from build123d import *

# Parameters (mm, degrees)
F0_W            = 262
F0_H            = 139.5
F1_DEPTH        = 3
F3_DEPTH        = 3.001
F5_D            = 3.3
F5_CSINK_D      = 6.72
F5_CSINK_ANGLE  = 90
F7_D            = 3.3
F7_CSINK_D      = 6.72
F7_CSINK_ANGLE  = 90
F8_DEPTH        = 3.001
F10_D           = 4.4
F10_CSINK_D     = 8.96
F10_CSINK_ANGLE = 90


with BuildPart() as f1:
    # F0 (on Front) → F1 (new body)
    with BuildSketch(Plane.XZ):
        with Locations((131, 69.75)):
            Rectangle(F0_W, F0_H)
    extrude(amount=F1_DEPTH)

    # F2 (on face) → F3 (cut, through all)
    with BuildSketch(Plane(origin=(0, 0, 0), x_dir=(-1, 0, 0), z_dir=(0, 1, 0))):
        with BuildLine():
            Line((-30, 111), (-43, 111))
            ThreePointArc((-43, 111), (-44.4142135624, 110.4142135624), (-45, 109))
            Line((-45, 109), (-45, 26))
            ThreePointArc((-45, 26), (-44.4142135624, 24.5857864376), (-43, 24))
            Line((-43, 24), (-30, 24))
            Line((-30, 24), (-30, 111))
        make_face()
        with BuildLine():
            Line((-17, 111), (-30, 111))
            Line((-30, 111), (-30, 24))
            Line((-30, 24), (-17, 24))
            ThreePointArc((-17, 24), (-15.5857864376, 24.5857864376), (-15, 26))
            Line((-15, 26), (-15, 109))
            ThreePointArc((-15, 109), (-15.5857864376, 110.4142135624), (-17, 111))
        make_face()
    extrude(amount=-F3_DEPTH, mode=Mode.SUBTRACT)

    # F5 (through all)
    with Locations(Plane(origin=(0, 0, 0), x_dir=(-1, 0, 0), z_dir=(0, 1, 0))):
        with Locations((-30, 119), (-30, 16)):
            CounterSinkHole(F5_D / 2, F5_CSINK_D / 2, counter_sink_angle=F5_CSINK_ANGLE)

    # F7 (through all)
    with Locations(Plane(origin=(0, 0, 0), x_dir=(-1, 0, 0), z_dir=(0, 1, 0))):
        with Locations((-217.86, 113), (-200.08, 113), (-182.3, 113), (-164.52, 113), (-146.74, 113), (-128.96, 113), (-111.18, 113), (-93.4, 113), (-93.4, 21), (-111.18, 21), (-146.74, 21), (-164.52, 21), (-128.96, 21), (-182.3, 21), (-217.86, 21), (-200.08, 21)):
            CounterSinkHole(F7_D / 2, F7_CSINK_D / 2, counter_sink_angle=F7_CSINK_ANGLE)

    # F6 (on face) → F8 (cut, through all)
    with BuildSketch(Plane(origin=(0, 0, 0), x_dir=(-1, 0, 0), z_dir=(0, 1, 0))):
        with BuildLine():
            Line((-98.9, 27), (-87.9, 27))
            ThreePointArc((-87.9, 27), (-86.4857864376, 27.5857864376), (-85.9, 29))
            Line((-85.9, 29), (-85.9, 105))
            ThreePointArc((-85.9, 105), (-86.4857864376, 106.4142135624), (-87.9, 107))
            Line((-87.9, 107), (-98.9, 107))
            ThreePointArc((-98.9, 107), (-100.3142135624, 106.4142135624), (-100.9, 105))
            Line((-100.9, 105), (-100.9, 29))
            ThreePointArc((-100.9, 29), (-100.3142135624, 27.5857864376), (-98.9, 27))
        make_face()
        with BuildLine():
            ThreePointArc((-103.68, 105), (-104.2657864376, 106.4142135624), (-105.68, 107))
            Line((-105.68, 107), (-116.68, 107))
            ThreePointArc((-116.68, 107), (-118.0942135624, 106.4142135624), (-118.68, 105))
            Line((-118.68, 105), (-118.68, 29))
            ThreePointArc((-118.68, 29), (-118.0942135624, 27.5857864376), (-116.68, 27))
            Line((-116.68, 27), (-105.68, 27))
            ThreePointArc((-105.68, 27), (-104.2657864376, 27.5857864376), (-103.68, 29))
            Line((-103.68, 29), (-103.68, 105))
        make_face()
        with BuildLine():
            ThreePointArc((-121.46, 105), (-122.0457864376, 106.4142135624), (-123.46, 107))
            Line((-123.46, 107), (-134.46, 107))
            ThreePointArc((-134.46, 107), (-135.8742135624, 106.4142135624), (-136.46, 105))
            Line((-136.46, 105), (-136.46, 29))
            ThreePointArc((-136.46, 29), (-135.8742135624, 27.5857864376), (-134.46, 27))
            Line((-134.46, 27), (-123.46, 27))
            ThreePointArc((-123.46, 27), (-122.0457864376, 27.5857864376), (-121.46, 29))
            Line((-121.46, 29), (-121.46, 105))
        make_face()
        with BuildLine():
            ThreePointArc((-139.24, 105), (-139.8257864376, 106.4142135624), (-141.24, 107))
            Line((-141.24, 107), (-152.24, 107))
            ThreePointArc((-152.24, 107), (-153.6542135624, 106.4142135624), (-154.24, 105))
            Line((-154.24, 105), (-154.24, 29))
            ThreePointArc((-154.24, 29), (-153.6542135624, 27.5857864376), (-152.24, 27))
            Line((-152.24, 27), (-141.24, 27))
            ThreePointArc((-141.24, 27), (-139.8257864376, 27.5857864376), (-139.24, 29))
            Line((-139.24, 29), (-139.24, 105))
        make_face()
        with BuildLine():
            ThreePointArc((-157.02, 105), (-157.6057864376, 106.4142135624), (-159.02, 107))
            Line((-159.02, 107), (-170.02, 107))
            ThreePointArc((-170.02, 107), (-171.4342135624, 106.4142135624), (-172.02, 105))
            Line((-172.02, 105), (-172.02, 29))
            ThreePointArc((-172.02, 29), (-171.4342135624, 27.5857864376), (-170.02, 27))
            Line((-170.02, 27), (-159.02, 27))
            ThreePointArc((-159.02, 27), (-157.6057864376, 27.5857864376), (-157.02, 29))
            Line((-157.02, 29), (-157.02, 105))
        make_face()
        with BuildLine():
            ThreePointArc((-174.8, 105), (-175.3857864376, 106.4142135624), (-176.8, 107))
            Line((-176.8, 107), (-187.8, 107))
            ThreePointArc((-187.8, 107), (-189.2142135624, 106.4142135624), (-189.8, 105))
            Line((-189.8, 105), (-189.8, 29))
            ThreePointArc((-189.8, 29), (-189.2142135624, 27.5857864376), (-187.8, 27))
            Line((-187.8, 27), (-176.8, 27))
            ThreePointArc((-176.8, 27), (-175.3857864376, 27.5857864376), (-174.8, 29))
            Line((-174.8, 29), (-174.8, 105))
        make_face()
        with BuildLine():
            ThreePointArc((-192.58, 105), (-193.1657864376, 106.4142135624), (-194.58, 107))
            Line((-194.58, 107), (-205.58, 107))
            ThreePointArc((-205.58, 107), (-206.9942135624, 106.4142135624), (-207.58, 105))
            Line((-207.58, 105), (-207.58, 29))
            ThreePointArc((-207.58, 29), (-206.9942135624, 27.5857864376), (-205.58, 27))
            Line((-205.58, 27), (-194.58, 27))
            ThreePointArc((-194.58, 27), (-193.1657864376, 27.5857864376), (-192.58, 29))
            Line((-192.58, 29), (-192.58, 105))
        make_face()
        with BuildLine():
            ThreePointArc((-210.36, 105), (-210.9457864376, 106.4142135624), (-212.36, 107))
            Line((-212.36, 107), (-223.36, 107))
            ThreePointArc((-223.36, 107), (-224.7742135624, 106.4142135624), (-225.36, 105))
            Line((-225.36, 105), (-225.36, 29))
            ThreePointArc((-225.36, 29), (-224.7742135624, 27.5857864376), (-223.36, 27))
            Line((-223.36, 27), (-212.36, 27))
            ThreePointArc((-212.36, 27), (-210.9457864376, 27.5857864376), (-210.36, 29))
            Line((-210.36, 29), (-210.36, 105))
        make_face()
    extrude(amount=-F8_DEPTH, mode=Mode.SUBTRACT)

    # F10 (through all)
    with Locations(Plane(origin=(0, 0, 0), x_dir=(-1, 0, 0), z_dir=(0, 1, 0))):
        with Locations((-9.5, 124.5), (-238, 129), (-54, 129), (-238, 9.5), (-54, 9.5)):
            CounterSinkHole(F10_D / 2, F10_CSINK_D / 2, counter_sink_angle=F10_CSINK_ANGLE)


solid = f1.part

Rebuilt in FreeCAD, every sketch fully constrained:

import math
import FreeCAD as App
import Part
import Sketcher

V = App.Vector
Q = App.Units.Quantity

doc = App.newDocument("Part")
body = doc.addObject("PartDesign::Body", "Body")

# Sketch on XZ plane
sketch1 = body.newObject("Sketcher::SketchObject", "Sketch")
sketch1.AttachmentSupport = (doc.getObject("XZ_Plane"), [""])
sketch1.MapMode = "FlatFace"
sketch1.addGeometry([
    Part.LineSegment(V(0, 140, 0), V(0, 0, 0)),
    Part.LineSegment(V(0, 0, 0), V(262, 0, 0)),
    Part.LineSegment(V(262, 0, 0), V(262, 140, 0)),
    Part.LineSegment(V(262, 140, 0), V(0, 140, 0)),
], False)
sketch1.addConstraint([
    Sketcher.Constraint("Coincident", 0, 2, 1, 1),
    Sketcher.Constraint("Coincident", 1, 2, 2, 1),
    Sketcher.Constraint("Coincident", 2, 2, 3, 1),
    Sketcher.Constraint("Coincident", 3, 2, 0, 1),
    Sketcher.Constraint("Vertical", 0),
    Sketcher.Constraint("Horizontal", 1),
    Sketcher.Constraint("Vertical", 2),
    Sketcher.Constraint("Horizontal", 3),
    Sketcher.Constraint("Coincident", 0, 2, -1, 1),
    Sketcher.Constraint("DistanceX", 1, 1, 1, 2, Q("262 mm")),
    Sketcher.Constraint("DistanceY", 0, 2, 0, 1, Q("139.5 mm")),
])
pad1 = body.newObject("PartDesign::Pad", "Pad")
pad1.Profile = sketch1
pad1.Length = 3

# Sketch on XZ plane
sketch2 = body.newObject("Sketcher::SketchObject", "Sketch001")
sketch2.AttachmentSupport = (doc.getObject("XZ_Plane"), [""])
sketch2.MapMode = "FlatFace"
sketch2.addGeometry([
    Part.ArcOfCircle(Part.Circle(V(43, 109, 0), V(0, 0, 1), 2), math.radians(0), math.radians(90)),  # 0
    Part.LineSegment(V(45, 109, 0), V(45, 26, 0)),  # 1
    Part.ArcOfCircle(Part.Circle(V(43, 26, 0), V(0, 0, 1), 2), math.radians(-90), math.radians(0)),  # 2
    Part.LineSegment(V(43, 24, 0), V(17, 24, 0)),  # 3
    Part.ArcOfCircle(Part.Circle(V(17, 26, 0), V(0, 0, 1), 2), math.radians(180), math.radians(270)),  # 4
    Part.LineSegment(V(15, 26, 0), V(15, 109, 0)),  # 5
    Part.ArcOfCircle(Part.Circle(V(17, 109, 0), V(0, 0, 1), 2), math.radians(90), math.radians(180)),  # 6
    Part.LineSegment(V(17, 111, 0), V(43, 111, 0)),  # 7
], False)
sketch2.addConstraint([
    Sketcher.Constraint("Tangent", 0, 1, 1, 1),
    Sketcher.Constraint("Tangent", 1, 2, 2, 2),
    Sketcher.Constraint("Tangent", 2, 1, 3, 1),
    Sketcher.Constraint("Tangent", 3, 2, 4, 2),
    Sketcher.Constraint("Tangent", 4, 1, 5, 1),
    Sketcher.Constraint("Tangent", 5, 2, 6, 2),
    Sketcher.Constraint("Tangent", 6, 1, 7, 1),
    Sketcher.Constraint("Tangent", 7, 2, 0, 2),
    Sketcher.Constraint("Vertical", 1),
    Sketcher.Constraint("Horizontal", 3),
    Sketcher.Constraint("Vertical", 5),
    Sketcher.Constraint("Horizontal", 7),
    Sketcher.Constraint("Equal", 0, 2),
    Sketcher.Constraint("Equal", 2, 4),
    Sketcher.Constraint("Equal", 4, 6),
    Sketcher.Constraint("Radius", 0, Q("2 mm")),
    Sketcher.Constraint("DistanceX", 3, 2, 3, 1, Q("26 mm")),
    Sketcher.Constraint("DistanceY", 1, 2, 1, 1, Q("83 mm")),
    Sketcher.Constraint("DistanceX", -1, 1, 0, 3, Q("43 mm")),
    Sketcher.Constraint("DistanceY", -1, 1, 0, 3, Q("109 mm")),
])
pocket1 = body.newObject("PartDesign::Pocket", "Pocket")
pocket1.Profile = sketch2
pocket1.Type = "ThroughAll"
pocket1.Reversed = True

# Sketch on XZ plane
sketch3 = body.newObject("Sketcher::SketchObject", "Sketch002")
sketch3.AttachmentSupport = (doc.getObject("XZ_Plane"), [""])
sketch3.MapMode = "FlatFace"
sketch3.addGeometry([
    Part.Circle(V(30, 119, 0), V(0, 0, 1), 1.6),
    Part.Circle(V(30, 16, 0), V(0, 0, 1), 1.6),
], False)
sketch3.addConstraint([
    Sketcher.Constraint("Equal", 0, 1),
    Sketcher.Constraint("Vertical", 0, 3, 1, 3),
    Sketcher.Constraint("Diameter", 0, Q("3.3 mm")),
    Sketcher.Constraint("DistanceX", -1, 1, 0, 3, Q("30 mm")),
    Sketcher.Constraint("DistanceY", -1, 1, 0, 3, Q("119 mm")),
    Sketcher.Constraint("DistanceY", -1, 1, 1, 3, Q("16 mm")),
])
doc.recompute()
hole = body.newObject("PartDesign::Hole", "Hole")
hole.Profile = sketch3
hole.ThreadType = "None"
hole.Diameter = 3.3
hole.DepthType = "ThroughAll"
hole.HoleCutType = "Countersink"
hole.HoleCutDiameter = 6.72
hole.HoleCutCountersinkAngle = 90
hole.Reversed = True

# Sketch on XZ plane
sketch4 = body.newObject("Sketcher::SketchObject", "Sketch003")
sketch4.AttachmentSupport = (doc.getObject("XZ_Plane"), [""])
sketch4.MapMode = "FlatFace"
sketch4.addGeometry([
    Part.Circle(V(217.9, 113, 0), V(0, 0, 1), 1.6),  # 0
    Part.Circle(V(200.1, 113, 0), V(0, 0, 1), 1.6),  # 1
    Part.Circle(V(182.3, 113, 0), V(0, 0, 1), 1.6),  # 2
    Part.Circle(V(164.5, 113, 0), V(0, 0, 1), 1.6),  # 3
    Part.Circle(V(146.7, 113, 0), V(0, 0, 1), 1.6),  # 4
    Part.Circle(V(129, 113, 0), V(0, 0, 1), 1.6),  # 5
    Part.Circle(V(111.2, 113, 0), V(0, 0, 1), 1.6),  # 6
    Part.Circle(V(93.4, 113, 0), V(0, 0, 1), 1.6),  # 7
    Part.Circle(V(93.4, 21, 0), V(0, 0, 1), 1.6),  # 8
    Part.Circle(V(111.2, 21, 0), V(0, 0, 1), 1.6),  # 9
    Part.Circle(V(146.7, 21, 0), V(0, 0, 1), 1.6),  # 10
    Part.Circle(V(164.5, 21, 0), V(0, 0, 1), 1.6),  # 11
    Part.Circle(V(129, 21, 0), V(0, 0, 1), 1.6),  # 12
    Part.Circle(V(182.3, 21, 0), V(0, 0, 1), 1.6),  # 13
    Part.Circle(V(217.9, 21, 0), V(0, 0, 1), 1.6),  # 14
    Part.Circle(V(200.1, 21, 0), V(0, 0, 1), 1.6),  # 15
], False)
sketch4.addConstraint([
    Sketcher.Constraint("Equal", 0, 1),
    Sketcher.Constraint("Equal", 1, 2),
    Sketcher.Constraint("Equal", 2, 3),
    Sketcher.Constraint("Equal", 3, 4),
    Sketcher.Constraint("Equal", 4, 5),
    Sketcher.Constraint("Equal", 5, 6),
    Sketcher.Constraint("Equal", 6, 7),
    Sketcher.Constraint("Equal", 7, 8),
    Sketcher.Constraint("Equal", 8, 9),
    Sketcher.Constraint("Equal", 9, 10),
    Sketcher.Constraint("Equal", 10, 11),
    Sketcher.Constraint("Equal", 11, 12),
    Sketcher.Constraint("Equal", 12, 13),
    Sketcher.Constraint("Equal", 13, 14),
    Sketcher.Constraint("Equal", 14, 15),
    Sketcher.Constraint("Horizontal", 0, 3, 1, 3),
    Sketcher.Constraint("Horizontal", 1, 3, 2, 3),
    Sketcher.Constraint("Horizontal", 2, 3, 3, 3),
    Sketcher.Constraint("Horizontal", 3, 3, 4, 3),
    Sketcher.Constraint("Horizontal", 4, 3, 5, 3),
    Sketcher.Constraint("Horizontal", 5, 3, 6, 3),
    Sketcher.Constraint("Horizontal", 6, 3, 7, 3),
    Sketcher.Constraint("Horizontal", 8, 3, 9, 3),
    Sketcher.Constraint("Horizontal", 9, 3, 10, 3),
    Sketcher.Constraint("Horizontal", 10, 3, 11, 3),
    Sketcher.Constraint("Horizontal", 11, 3, 12, 3),
    Sketcher.Constraint("Horizontal", 12, 3, 13, 3),
    Sketcher.Constraint("Horizontal", 13, 3, 14, 3),
    Sketcher.Constraint("Horizontal", 14, 3, 15, 3),
    Sketcher.Constraint("Vertical", 7, 3, 8, 3),
    Sketcher.Constraint("Vertical", 6, 3, 9, 3),
    Sketcher.Constraint("Vertical", 4, 3, 10, 3),
    Sketcher.Constraint("Vertical", 3, 3, 11, 3),
    Sketcher.Constraint("Vertical", 5, 3, 12, 3),
    Sketcher.Constraint("Vertical", 2, 3, 13, 3),
    Sketcher.Constraint("Vertical", 0, 3, 14, 3),
    Sketcher.Constraint("Vertical", 1, 3, 15, 3),
    Sketcher.Constraint("Diameter", 0, Q("3.3 mm")),
    Sketcher.Constraint("DistanceY", -1, 1, 0, 3, Q("113 mm")),
    Sketcher.Constraint("DistanceY", -1, 1, 8, 3, Q("21 mm")),
    Sketcher.Constraint("DistanceX", -1, 1, 2, 3, Q("182.3 mm")),
    Sketcher.Constraint("DistanceX", -1, 1, 7, 3, Q("93.4 mm")),
    Sketcher.Constraint("DistanceX", 5, 3, 0, 3, Q("88.9 mm")),
    Sketcher.Constraint("DistanceX", 6, 3, 1, 3, Q("88.9 mm")),
    Sketcher.Constraint("DistanceX", -1, 1, 0, 3, Q("217.86 mm")),
    Sketcher.Constraint("DistanceX", -1, 1, 1, 3, Q("200.08 mm")),
    Sketcher.Constraint("DistanceX", -1, 1, 3, 3, Q("164.52 mm")),
    Sketcher.Constraint("DistanceX", -1, 1, 4, 3, Q("146.74 mm")),
])
doc.recompute()
hole2 = body.newObject("PartDesign::Hole", "Hole001")
hole2.Profile = sketch4
hole2.ThreadType = "None"
hole2.Diameter = 3.3
hole2.DepthType = "ThroughAll"
hole2.HoleCutType = "Countersink"
hole2.HoleCutDiameter = 6.72
hole2.HoleCutCountersinkAngle = 90
hole2.Reversed = True

# Sketch on XZ plane
sketch5 = body.newObject("Sketcher::SketchObject", "Sketch004")
sketch5.AttachmentSupport = (doc.getObject("XZ_Plane"), [""])
sketch5.MapMode = "FlatFace"
sketch5.addGeometry([
    Part.LineSegment(V(98.9, 27, 0), V(87.9, 27, 0)),  # 0
    Part.ArcOfCircle(Part.Circle(V(87.9, 29, 0), V(0, 0, 1), 2), math.radians(180), math.radians(270)),  # 1
    Part.LineSegment(V(85.9, 29, 0), V(85.9, 105, 0)),  # 2
    Part.ArcOfCircle(Part.Circle(V(87.9, 105, 0), V(0, 0, 1), 2), math.radians(90), math.radians(180)),  # 3
    Part.LineSegment(V(87.9, 107, 0), V(98.9, 107, 0)),  # 4
    Part.ArcOfCircle(Part.Circle(V(98.9, 105, 0), V(0, 0, 1), 2), math.radians(0), math.radians(90)),  # 5
    Part.LineSegment(V(100.9, 105, 0), V(100.9, 29, 0)),  # 6
    Part.ArcOfCircle(Part.Circle(V(98.9, 29, 0), V(0, 0, 1), 2), math.radians(-90), math.radians(0)),  # 7
    Part.ArcOfCircle(Part.Circle(V(105.7, 105, 0), V(0, 0, 1), 2), math.radians(90), math.radians(180)),  # 8
    Part.LineSegment(V(105.7, 107, 0), V(116.7, 107, 0)),  # 9
    Part.ArcOfCircle(Part.Circle(V(116.7, 105, 0), V(0, 0, 1), 2), math.radians(0), math.radians(90)),  # 10
    Part.LineSegment(V(118.7, 105, 0), V(118.7, 29, 0)),  # 11
    Part.ArcOfCircle(Part.Circle(V(116.7, 29, 0), V(0, 0, 1), 2), math.radians(-90), math.radians(0)),  # 12
    Part.LineSegment(V(116.7, 27, 0), V(105.7, 27, 0)),  # 13
    Part.ArcOfCircle(Part.Circle(V(105.7, 29, 0), V(0, 0, 1), 2), math.radians(180), math.radians(270)),  # 14
    Part.LineSegment(V(103.7, 29, 0), V(103.7, 105, 0)),  # 15
    Part.ArcOfCircle(Part.Circle(V(123.5, 105, 0), V(0, 0, 1), 2), math.radians(90), math.radians(180)),  # 16
    Part.LineSegment(V(123.5, 107, 0), V(134.5, 107, 0)),  # 17
    Part.ArcOfCircle(Part.Circle(V(134.5, 105, 0), V(0, 0, 1), 2), math.radians(0), math.radians(90)),  # 18
    Part.LineSegment(V(136.5, 105, 0), V(136.5, 29, 0)),  # 19
    Part.ArcOfCircle(Part.Circle(V(134.5, 29, 0), V(0, 0, 1), 2), math.radians(-90), math.radians(0)),  # 20
    Part.LineSegment(V(134.5, 27, 0), V(123.5, 27, 0)),  # 21
    Part.ArcOfCircle(Part.Circle(V(123.5, 29, 0), V(0, 0, 1), 2), math.radians(180), math.radians(270)),  # 22
    Part.LineSegment(V(121.5, 29, 0), V(121.5, 105, 0)),  # 23
    Part.ArcOfCircle(Part.Circle(V(141.2, 105, 0), V(0, 0, 1), 2), math.radians(90), math.radians(180)),  # 24
    Part.LineSegment(V(141.2, 107, 0), V(152.2, 107, 0)),  # 25
    Part.ArcOfCircle(Part.Circle(V(152.2, 105, 0), V(0, 0, 1), 2), math.radians(0), math.radians(90)),  # 26
    Part.LineSegment(V(154.2, 105, 0), V(154.2, 29, 0)),  # 27
    Part.ArcOfCircle(Part.Circle(V(152.2, 29, 0), V(0, 0, 1), 2), math.radians(-90), math.radians(0)),  # 28
    Part.LineSegment(V(152.2, 27, 0), V(141.2, 27, 0)),  # 29
    Part.ArcOfCircle(Part.Circle(V(141.2, 29, 0), V(0, 0, 1), 2), math.radians(180), math.radians(270)),  # 30
    Part.LineSegment(V(139.2, 29, 0), V(139.2, 105, 0)),  # 31
    Part.ArcOfCircle(Part.Circle(V(159, 105, 0), V(0, 0, 1), 2), math.radians(90), math.radians(180)),  # 32
    Part.LineSegment(V(159, 107, 0), V(170, 107, 0)),  # 33
    Part.ArcOfCircle(Part.Circle(V(170, 105, 0), V(0, 0, 1), 2), math.radians(0), math.radians(90)),  # 34
    Part.LineSegment(V(172, 105, 0), V(172, 29, 0)),  # 35
    Part.ArcOfCircle(Part.Circle(V(170, 29, 0), V(0, 0, 1), 2), math.radians(-90), math.radians(0)),  # 36
    Part.LineSegment(V(170, 27, 0), V(159, 27, 0)),  # 37
    Part.ArcOfCircle(Part.Circle(V(159, 29, 0), V(0, 0, 1), 2), math.radians(180), math.radians(270)),  # 38
    Part.LineSegment(V(157, 29, 0), V(157, 105, 0)),  # 39
    Part.ArcOfCircle(Part.Circle(V(176.8, 105, 0), V(0, 0, 1), 2), math.radians(90), math.radians(180)),  # 40
    Part.LineSegment(V(176.8, 107, 0), V(187.8, 107, 0)),  # 41
    Part.ArcOfCircle(Part.Circle(V(187.8, 105, 0), V(0, 0, 1), 2), math.radians(0), math.radians(90)),  # 42
    Part.LineSegment(V(189.8, 105, 0), V(189.8, 29, 0)),  # 43
    Part.ArcOfCircle(Part.Circle(V(187.8, 29, 0), V(0, 0, 1), 2), math.radians(-90), math.radians(0)),  # 44
    Part.LineSegment(V(187.8, 27, 0), V(176.8, 27, 0)),  # 45
    Part.ArcOfCircle(Part.Circle(V(176.8, 29, 0), V(0, 0, 1), 2), math.radians(180), math.radians(270)),  # 46
    Part.LineSegment(V(174.8, 29, 0), V(174.8, 105, 0)),  # 47
    Part.ArcOfCircle(Part.Circle(V(194.6, 105, 0), V(0, 0, 1), 2), math.radians(90), math.radians(180)),  # 48
    Part.LineSegment(V(194.6, 107, 0), V(205.6, 107, 0)),  # 49
    Part.ArcOfCircle(Part.Circle(V(205.6, 105, 0), V(0, 0, 1), 2), math.radians(0), math.radians(90)),  # 50
    Part.LineSegment(V(207.6, 105, 0), V(207.6, 29, 0)),  # 51
    Part.ArcOfCircle(Part.Circle(V(205.6, 29, 0), V(0, 0, 1), 2), math.radians(-90), math.radians(0)),  # 52
    Part.LineSegment(V(205.6, 27, 0), V(194.6, 27, 0)),  # 53
    Part.ArcOfCircle(Part.Circle(V(194.6, 29, 0), V(0, 0, 1), 2), math.radians(180), math.radians(270)),  # 54
    Part.LineSegment(V(192.6, 29, 0), V(192.6, 105, 0)),  # 55
    Part.ArcOfCircle(Part.Circle(V(212.4, 105, 0), V(0, 0, 1), 2), math.radians(90), math.radians(180)),  # 56
    Part.LineSegment(V(212.4, 107, 0), V(223.4, 107, 0)),  # 57
    Part.ArcOfCircle(Part.Circle(V(223.4, 105, 0), V(0, 0, 1), 2), math.radians(0), math.radians(90)),  # 58
    Part.LineSegment(V(225.4, 105, 0), V(225.4, 29, 0)),  # 59
    Part.ArcOfCircle(Part.Circle(V(223.4, 29, 0), V(0, 0, 1), 2), math.radians(-90), math.radians(0)),  # 60
    Part.LineSegment(V(223.4, 27, 0), V(212.4, 27, 0)),  # 61
    Part.ArcOfCircle(Part.Circle(V(212.4, 29, 0), V(0, 0, 1), 2), math.radians(180), math.radians(270)),  # 62
    Part.LineSegment(V(210.4, 29, 0), V(210.4, 105, 0)),  # 63
], False)
sketch5.addConstraint([
    Sketcher.Constraint("Tangent", 0, 2, 1, 2),
    Sketcher.Constraint("Tangent", 1, 1, 2, 1),
    Sketcher.Constraint("Tangent", 2, 2, 3, 2),
    Sketcher.Constraint("Tangent", 3, 1, 4, 1),
    Sketcher.Constraint("Tangent", 4, 2, 5, 2),
    Sketcher.Constraint("Tangent", 5, 1, 6, 1),
    Sketcher.Constraint("Tangent", 6, 2, 7, 2),
    Sketcher.Constraint("Tangent", 7, 1, 0, 1),
    Sketcher.Constraint("Tangent", 8, 1, 9, 1),
    Sketcher.Constraint("Tangent", 9, 2, 10, 2),
    Sketcher.Constraint("Tangent", 10, 1, 11, 1),
    Sketcher.Constraint("Tangent", 11, 2, 12, 2),
    Sketcher.Constraint("Tangent", 12, 1, 13, 1),
    Sketcher.Constraint("Tangent", 13, 2, 14, 2),
    Sketcher.Constraint("Tangent", 14, 1, 15, 1),
    Sketcher.Constraint("Tangent", 15, 2, 8, 2),
    Sketcher.Constraint("Tangent", 16, 1, 17, 1),
    Sketcher.Constraint("Tangent", 17, 2, 18, 2),
    Sketcher.Constraint("Tangent", 18, 1, 19, 1),
    Sketcher.Constraint("Tangent", 19, 2, 20, 2),
    Sketcher.Constraint("Tangent", 20, 1, 21, 1),
    Sketcher.Constraint("Tangent", 21, 2, 22, 2),
    Sketcher.Constraint("Tangent", 22, 1, 23, 1),
    Sketcher.Constraint("Tangent", 23, 2, 16, 2),
    Sketcher.Constraint("Tangent", 24, 1, 25, 1),
    Sketcher.Constraint("Tangent", 25, 2, 26, 2),
    Sketcher.Constraint("Tangent", 26, 1, 27, 1),
    Sketcher.Constraint("Tangent", 27, 2, 28, 2),
    Sketcher.Constraint("Tangent", 28, 1, 29, 1),
    Sketcher.Constraint("Tangent", 29, 2, 30, 2),
    Sketcher.Constraint("Tangent", 30, 1, 31, 1),
    Sketcher.Constraint("Tangent", 31, 2, 24, 2),
    Sketcher.Constraint("Tangent", 32, 1, 33, 1),
    Sketcher.Constraint("Tangent", 33, 2, 34, 2),
    Sketcher.Constraint("Tangent", 34, 1, 35, 1),
    Sketcher.Constraint("Tangent", 35, 2, 36, 2),
    Sketcher.Constraint("Tangent", 36, 1, 37, 1),
    Sketcher.Constraint("Tangent", 37, 2, 38, 2),
    Sketcher.Constraint("Tangent", 38, 1, 39, 1),
    Sketcher.Constraint("Tangent", 39, 2, 32, 2),
    Sketcher.Constraint("Tangent", 40, 1, 41, 1),
    Sketcher.Constraint("Tangent", 41, 2, 42, 2),
    Sketcher.Constraint("Tangent", 42, 1, 43, 1),
    Sketcher.Constraint("Tangent", 43, 2, 44, 2),
    Sketcher.Constraint("Tangent", 44, 1, 45, 1),
    Sketcher.Constraint("Tangent", 45, 2, 46, 2),
    Sketcher.Constraint("Tangent", 46, 1, 47, 1),
    Sketcher.Constraint("Tangent", 47, 2, 40, 2),
    Sketcher.Constraint("Tangent", 48, 1, 49, 1),
    Sketcher.Constraint("Tangent", 49, 2, 50, 2),
    Sketcher.Constraint("Tangent", 50, 1, 51, 1),
    Sketcher.Constraint("Tangent", 51, 2, 52, 2),
    Sketcher.Constraint("Tangent", 52, 1, 53, 1),
    Sketcher.Constraint("Tangent", 53, 2, 54, 2),
    Sketcher.Constraint("Tangent", 54, 1, 55, 1),
    Sketcher.Constraint("Tangent", 55, 2, 48, 2),
    Sketcher.Constraint("Tangent", 56, 1, 57, 1),
    Sketcher.Constraint("Tangent", 57, 2, 58, 2),
    Sketcher.Constraint("Tangent", 58, 1, 59, 1),
    Sketcher.Constraint("Tangent", 59, 2, 60, 2),
    Sketcher.Constraint("Tangent", 60, 1, 61, 1),
    Sketcher.Constraint("Tangent", 61, 2, 62, 2),
    Sketcher.Constraint("Tangent", 62, 1, 63, 1),
    Sketcher.Constraint("Tangent", 63, 2, 56, 2),
    Sketcher.Constraint("Horizontal", 0),
    Sketcher.Constraint("Vertical", 2),
    Sketcher.Constraint("Horizontal", 4),
    Sketcher.Constraint("Vertical", 6),
    Sketcher.Constraint("Horizontal", 9),
    Sketcher.Constraint("Vertical", 11),
    Sketcher.Constraint("Horizontal", 13),
    Sketcher.Constraint("Vertical", 15),
    Sketcher.Constraint("Horizontal", 17),
    Sketcher.Constraint("Vertical", 19),
    Sketcher.Constraint("Horizontal", 21),
    Sketcher.Constraint("Vertical", 23),
    Sketcher.Constraint("Horizontal", 25),
    Sketcher.Constraint("Vertical", 27),
    Sketcher.Constraint("Horizontal", 29),
    Sketcher.Constraint("Vertical", 31),
    Sketcher.Constraint("Horizontal", 33),
    Sketcher.Constraint("Vertical", 35),
    Sketcher.Constraint("Horizontal", 37),
    Sketcher.Constraint("Vertical", 39),
    Sketcher.Constraint("Horizontal", 41),
    Sketcher.Constraint("Vertical", 43),
    Sketcher.Constraint("Horizontal", 45),
    Sketcher.Constraint("Vertical", 47),
    Sketcher.Constraint("Horizontal", 49),
    Sketcher.Constraint("Vertical", 51),
    Sketcher.Constraint("Horizontal", 53),
    Sketcher.Constraint("Vertical", 55),
    Sketcher.Constraint("Horizontal", 57),
    Sketcher.Constraint("Vertical", 59),
    Sketcher.Constraint("Horizontal", 61),
    Sketcher.Constraint("Vertical", 63),
    Sketcher.Constraint("Equal", 1, 3),
    Sketcher.Constraint("Equal", 3, 5),
    Sketcher.Constraint("Equal", 5, 7),
    Sketcher.Constraint("Equal", 7, 8),
    Sketcher.Constraint("Equal", 8, 10),
    Sketcher.Constraint("Equal", 10, 12),
    Sketcher.Constraint("Equal", 12, 14),
    Sketcher.Constraint("Equal", 14, 16),
    Sketcher.Constraint("Equal", 16, 18),
    Sketcher.Constraint("Equal", 18, 20),
    Sketcher.Constraint("Equal", 20, 22),
    Sketcher.Constraint("Equal", 22, 24),
    Sketcher.Constraint("Equal", 24, 26),
    Sketcher.Constraint("Equal", 26, 28),
    Sketcher.Constraint("Equal", 28, 30),
    Sketcher.Constraint("Equal", 30, 32),
    Sketcher.Constraint("Equal", 32, 34),
    Sketcher.Constraint("Equal", 34, 36),
    Sketcher.Constraint("Equal", 36, 38),
    Sketcher.Constraint("Equal", 38, 40),
    Sketcher.Constraint("Equal", 40, 42),
    Sketcher.Constraint("Equal", 42, 44),
    Sketcher.Constraint("Equal", 44, 46),
    Sketcher.Constraint("Equal", 46, 48),
    Sketcher.Constraint("Equal", 48, 50),
    Sketcher.Constraint("Equal", 50, 52),
    Sketcher.Constraint("Equal", 52, 54),
    Sketcher.Constraint("Equal", 54, 56),
    Sketcher.Constraint("Equal", 56, 58),
    Sketcher.Constraint("Equal", 58, 60),
    Sketcher.Constraint("Equal", 60, 62),
    Sketcher.Constraint("Horizontal", 5, 3, 8, 3),
    Sketcher.Constraint("Horizontal", 7, 3, 12, 3),
    Sketcher.Constraint("Horizontal", 10, 3, 16, 3),
    Sketcher.Constraint("Horizontal", 14, 3, 20, 3),
    Sketcher.Constraint("Horizontal", 18, 3, 24, 3),
    Sketcher.Constraint("Horizontal", 22, 3, 28, 3),
    Sketcher.Constraint("Horizontal", 26, 3, 32, 3),
    Sketcher.Constraint("Horizontal", 30, 3, 36, 3),
    Sketcher.Constraint("Horizontal", 34, 3, 40, 3),
    Sketcher.Constraint("Horizontal", 38, 3, 44, 3),
    Sketcher.Constraint("Horizontal", 42, 3, 48, 3),
    Sketcher.Constraint("Horizontal", 46, 3, 52, 3),
    Sketcher.Constraint("Horizontal", 50, 3, 56, 3),
    Sketcher.Constraint("Horizontal", 54, 3, 60, 3),
    Sketcher.Constraint("Equal", 4, 9),
    Sketcher.Constraint("Equal", 13, 17),
    Sketcher.Constraint("Equal", 21, 25),
    Sketcher.Constraint("Equal", 29, 33),
    Sketcher.Constraint("Equal", 37, 41),
    Sketcher.Constraint("Equal", 45, 49),
    Sketcher.Constraint("Equal", 53, 57),
    Sketcher.Constraint("Radius", 1, Q("2 mm")),
    Sketcher.Constraint("DistanceX", 0, 2, 0, 1, Q("11 mm")),
    Sketcher.Constraint("DistanceY", 2, 1, 2, 2, Q("76 mm")),
    Sketcher.Constraint("DistanceY", -1, 1, 1, 3, Q("29 mm")),
    Sketcher.Constraint("DistanceX", -1, 1, 1, 3, Q("87.9 mm")),
    Sketcher.Constraint("DistanceX", -1, 1, 40, 3, Q("176.8 mm")),
    Sketcher.Constraint("DistanceX", -1, 1, 8, 3, Q("105.68 mm")),
    Sketcher.Constraint("DistanceX", -1, 1, 16, 3, Q("123.46 mm")),
    Sketcher.Constraint("DistanceX", -1, 1, 24, 3, Q("141.24 mm")),
    Sketcher.Constraint("DistanceX", -1, 1, 32, 3, Q("159.02 mm")),
    Sketcher.Constraint("DistanceX", -1, 1, 48, 3, Q("194.58 mm")),
    Sketcher.Constraint("DistanceX", -1, 1, 56, 3, Q("212.36 mm")),
])
pocket2 = body.newObject("PartDesign::Pocket", "Pocket001")
pocket2.Profile = sketch5
pocket2.Type = "ThroughAll"
pocket2.Reversed = True

# Sketch on XZ plane
sketch6 = body.newObject("Sketcher::SketchObject", "Sketch005")
sketch6.AttachmentSupport = (doc.getObject("XZ_Plane"), [""])
sketch6.MapMode = "FlatFace"
sketch6.addGeometry([
    Part.Circle(V(9.5, 124.5, 0), V(0, 0, 1), 2.2),  # 0
    Part.Circle(V(238, 129, 0), V(0, 0, 1), 2.2),  # 1
    Part.Circle(V(54, 129, 0), V(0, 0, 1), 2.2),  # 2
    Part.Circle(V(238, 9.5, 0), V(0, 0, 1), 2.2),  # 3
    Part.Circle(V(54, 9.5, 0), V(0, 0, 1), 2.2),  # 4
], False)
sketch6.addConstraint([
    Sketcher.Constraint("Equal", 0, 1),
    Sketcher.Constraint("Equal", 1, 2),
    Sketcher.Constraint("Equal", 2, 3),
    Sketcher.Constraint("Equal", 3, 4),
    Sketcher.Constraint("Horizontal", 1, 3, 2, 3),
    Sketcher.Constraint("Horizontal", 3, 3, 4, 3),
    Sketcher.Constraint("Vertical", 1, 3, 3, 3),
    Sketcher.Constraint("Vertical", 2, 3, 4, 3),
    Sketcher.Constraint("Diameter", 0, Q("4.4 mm")),
    Sketcher.Constraint("DistanceX", -1, 1, 1, 3, Q("238 mm")),
    Sketcher.Constraint("DistanceY", -1, 1, 1, 3, Q("129 mm")),
    Sketcher.Constraint("DistanceX", -1, 1, 2, 3, Q("54 mm")),
    Sketcher.Constraint("DistanceY", 3, 3, 0, 3, Q("115 mm")),
    Sketcher.Constraint("DistanceX", -1, 1, 0, 3, Q("9.5 mm")),
    Sketcher.Constraint("DistanceY", -1, 1, 0, 3, Q("124.5 mm")),
])
doc.recompute()
hole3 = body.newObject("PartDesign::Hole", "Hole002")
hole3.Profile = sketch6
hole3.ThreadType = "None"
hole3.Diameter = 4.4
hole3.DepthType = "ThroughAll"
hole3.HoleCutType = "Countersink"
hole3.HoleCutDiameter = 8.96
hole3.HoleCutCountersinkAngle = 90
hole3.Reversed = True

doc.recompute()
